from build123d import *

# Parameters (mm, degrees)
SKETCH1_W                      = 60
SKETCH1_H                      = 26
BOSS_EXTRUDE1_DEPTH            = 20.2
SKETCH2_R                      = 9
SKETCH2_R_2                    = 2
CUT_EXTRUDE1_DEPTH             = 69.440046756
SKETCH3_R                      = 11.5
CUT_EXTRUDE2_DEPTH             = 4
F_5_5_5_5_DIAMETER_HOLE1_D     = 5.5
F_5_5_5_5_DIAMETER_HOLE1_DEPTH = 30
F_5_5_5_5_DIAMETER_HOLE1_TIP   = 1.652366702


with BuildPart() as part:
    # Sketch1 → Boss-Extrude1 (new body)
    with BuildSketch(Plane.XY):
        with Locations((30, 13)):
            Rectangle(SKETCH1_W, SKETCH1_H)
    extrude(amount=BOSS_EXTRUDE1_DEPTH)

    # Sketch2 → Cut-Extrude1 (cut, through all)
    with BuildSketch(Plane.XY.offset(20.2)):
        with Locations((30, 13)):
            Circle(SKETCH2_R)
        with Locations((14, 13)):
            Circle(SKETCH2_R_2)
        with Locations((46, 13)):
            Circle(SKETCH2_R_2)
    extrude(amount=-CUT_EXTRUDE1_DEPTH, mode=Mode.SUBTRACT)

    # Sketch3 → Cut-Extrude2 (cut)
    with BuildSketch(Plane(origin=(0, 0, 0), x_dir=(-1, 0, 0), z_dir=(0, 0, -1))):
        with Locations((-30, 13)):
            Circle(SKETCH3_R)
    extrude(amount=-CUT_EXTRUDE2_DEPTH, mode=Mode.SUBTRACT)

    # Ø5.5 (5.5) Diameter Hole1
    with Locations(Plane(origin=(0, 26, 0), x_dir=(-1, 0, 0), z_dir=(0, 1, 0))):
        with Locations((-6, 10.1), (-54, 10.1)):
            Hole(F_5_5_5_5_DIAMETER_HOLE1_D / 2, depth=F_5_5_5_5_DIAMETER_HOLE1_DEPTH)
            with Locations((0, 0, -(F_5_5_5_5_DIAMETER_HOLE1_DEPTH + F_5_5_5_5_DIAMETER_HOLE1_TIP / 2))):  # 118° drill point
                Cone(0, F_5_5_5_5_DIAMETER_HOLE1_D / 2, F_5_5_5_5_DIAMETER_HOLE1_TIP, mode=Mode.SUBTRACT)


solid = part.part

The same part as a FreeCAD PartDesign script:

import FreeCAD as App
import Part
import Sketcher


def add_polygon(sketch, points):
    """Adds a closed chain of lines whose ends are joined by coincident constraints."""
    first, n = sketch.GeometryCount, len(points)
    for a, b in zip(points, points[1:] + points[:1]):
        sketch.addGeometry(Part.LineSegment(App.Vector(*a, 0), App.Vector(*b, 0)), False)
    for i in range(n):
        sketch.addConstraint(Sketcher.Constraint("Coincident", first + i, 2, first + (i + 1) % n, 1))

doc = App.newDocument("Part")
body = doc.addObject("PartDesign::Body", "Body")

sketch1 = body.newObject("Sketcher::SketchObject", "Sketch")
sketch1.AttachmentSupport = (doc.getObject("XY_Plane"), [""])
sketch1.MapMode = "FlatFace"
add_polygon(sketch1, [(0, 26), (0, 0), (60, 0), (60, 26)])
sketch1.addConstraint(Sketcher.Constraint("Vertical", 0))
sketch1.addConstraint(Sketcher.Constraint("Horizontal", 1))
sketch1.addConstraint(Sketcher.Constraint("Vertical", 2))
sketch1.addConstraint(Sketcher.Constraint("Horizontal", 3))
sketch1.addConstraint(Sketcher.Constraint("Coincident", 0, 2, -1, 1))
sketch1.addConstraint(Sketcher.Constraint("DistanceX", 1, 1, 1, 2, 60.0))
sketch1.addConstraint(Sketcher.Constraint("DistanceY", 0, 2, 0, 1, 26.0))
pad1 = body.newObject("PartDesign::Pad", "Pad")
pad1.Profile = sketch1
pad1.Length = 20.2

sketch2 = body.newObject("Sketcher::SketchObject", "Sketch001")
sketch2.AttachmentSupport = (doc.getObject("XY_Plane"), [""])
sketch2.MapMode = "FlatFace"
sketch2.AttachmentOffset = App.Placement(App.Vector(0, 0, 20.2), App.Rotation())
sketch2.addGeometry(Part.Circle(App.Vector(30, 13, 0), App.Vector(0, 0, 1), 9), False)
sketch2.addGeometry(Part.Circle(App.Vector(14, 13, 0), App.Vector(0, 0, 1), 2), False)
sketch2.addGeometry(Part.Circle(App.Vector(46, 13, 0), App.Vector(0, 0, 1), 2), False)
sketch2.addConstraint(Sketcher.Constraint("Equal", 1, 2))
sketch2.addConstraint(Sketcher.Constraint("Horizontal", 0, 3, 1, 3))
sketch2.addConstraint(Sketcher.Constraint("Horizontal", 1, 3, 2, 3))
sketch2.addConstraint(Sketcher.Constraint("Diameter", 0, 18.0))
sketch2.addConstraint(Sketcher.Constraint("Diameter", 1, 4.0))
sketch2.addConstraint(Sketcher.Constraint("DistanceX", -1, 1, 0, 3, 30.0))
sketch2.addConstraint(Sketcher.Constraint("DistanceY", -1, 1, 0, 3, 13.0))
sketch2.addConstraint(Sketcher.Constraint("DistanceX", -1, 1, 1, 3, 14.0))
sketch2.addConstraint(Sketcher.Constraint("DistanceX", -1, 1, 2, 3, 46.0))
pocket1 = body.newObject("PartDesign::Pocket", "Pocket")
pocket1.Profile = sketch2
pocket1.Type = "ThroughAll"

sketch3 = body.newObject("Sketcher::SketchObject", "Sketch002")
sketch3.AttachmentSupport = (doc.getObject("XY_Plane"), [""])
sketch3.MapMode = "FlatFace"
sketch3.addGeometry(Part.Circle(App.Vector(30, 13, 0), App.Vector(0, 0, 1), 12), False)
sketch3.addConstraint(Sketcher.Constraint("Diameter", 0, 23.0))
sketch3.addConstraint(Sketcher.Constraint("DistanceX", -1, 1, 0, 3, 30.0))
sketch3.addConstraint(Sketcher.Constraint("DistanceY", -1, 1, 0, 3, 13.0))
pocket2 = body.newObject("PartDesign::Pocket", "Pocket001")
pocket2.Profile = sketch3
pocket2.Length = 4
pocket2.Reversed = True

sketch4 = body.newObject("Sketcher::SketchObject", "Sketch003")
sketch4.AttachmentSupport = (doc.getObject("XZ_Plane"), [""])
sketch4.MapMode = "FlatFace"
sketch4.AttachmentOffset = App.Placement(App.Vector(0, 0, -26), App.Rotation())
sketch4.addGeometry(Part.Circle(App.Vector(6, 10.1, 0), App.Vector(0, 0, 1), 2.8), False)
sketch4.addGeometry(Part.Circle(App.Vector(54, 10.1, 0), App.Vector(0, 0, 1), 2.8), False)
sketch4.addConstraint(Sketcher.Constraint("Equal", 0, 1))
sketch4.addConstraint(Sketcher.Constraint("Horizontal", 0, 3, 1, 3))
sketch4.addConstraint(Sketcher.Constraint("Diameter", 0, 5.5))
sketch4.addConstraint(Sketcher.Constraint("DistanceX", -1, 1, 0, 3, 6.0))
sketch4.addConstraint(Sketcher.Constraint("DistanceX", -1, 1, 1, 3, 54.0))
sketch4.addConstraint(Sketcher.Constraint("DistanceY", -1, 1, 0, 3, 10.1))
doc.recompute()
hole = body.newObject("PartDesign::Hole", "Hole")
hole.Profile = sketch4
hole.ThreadType = "None"
hole.Diameter = 5.5
hole.DepthType = "Dimension"
hole.Depth = 30
hole.DrillPoint = "Angled"
hole.DrillPointAngle = 118
hole.Reversed = True

doc.recompute()
